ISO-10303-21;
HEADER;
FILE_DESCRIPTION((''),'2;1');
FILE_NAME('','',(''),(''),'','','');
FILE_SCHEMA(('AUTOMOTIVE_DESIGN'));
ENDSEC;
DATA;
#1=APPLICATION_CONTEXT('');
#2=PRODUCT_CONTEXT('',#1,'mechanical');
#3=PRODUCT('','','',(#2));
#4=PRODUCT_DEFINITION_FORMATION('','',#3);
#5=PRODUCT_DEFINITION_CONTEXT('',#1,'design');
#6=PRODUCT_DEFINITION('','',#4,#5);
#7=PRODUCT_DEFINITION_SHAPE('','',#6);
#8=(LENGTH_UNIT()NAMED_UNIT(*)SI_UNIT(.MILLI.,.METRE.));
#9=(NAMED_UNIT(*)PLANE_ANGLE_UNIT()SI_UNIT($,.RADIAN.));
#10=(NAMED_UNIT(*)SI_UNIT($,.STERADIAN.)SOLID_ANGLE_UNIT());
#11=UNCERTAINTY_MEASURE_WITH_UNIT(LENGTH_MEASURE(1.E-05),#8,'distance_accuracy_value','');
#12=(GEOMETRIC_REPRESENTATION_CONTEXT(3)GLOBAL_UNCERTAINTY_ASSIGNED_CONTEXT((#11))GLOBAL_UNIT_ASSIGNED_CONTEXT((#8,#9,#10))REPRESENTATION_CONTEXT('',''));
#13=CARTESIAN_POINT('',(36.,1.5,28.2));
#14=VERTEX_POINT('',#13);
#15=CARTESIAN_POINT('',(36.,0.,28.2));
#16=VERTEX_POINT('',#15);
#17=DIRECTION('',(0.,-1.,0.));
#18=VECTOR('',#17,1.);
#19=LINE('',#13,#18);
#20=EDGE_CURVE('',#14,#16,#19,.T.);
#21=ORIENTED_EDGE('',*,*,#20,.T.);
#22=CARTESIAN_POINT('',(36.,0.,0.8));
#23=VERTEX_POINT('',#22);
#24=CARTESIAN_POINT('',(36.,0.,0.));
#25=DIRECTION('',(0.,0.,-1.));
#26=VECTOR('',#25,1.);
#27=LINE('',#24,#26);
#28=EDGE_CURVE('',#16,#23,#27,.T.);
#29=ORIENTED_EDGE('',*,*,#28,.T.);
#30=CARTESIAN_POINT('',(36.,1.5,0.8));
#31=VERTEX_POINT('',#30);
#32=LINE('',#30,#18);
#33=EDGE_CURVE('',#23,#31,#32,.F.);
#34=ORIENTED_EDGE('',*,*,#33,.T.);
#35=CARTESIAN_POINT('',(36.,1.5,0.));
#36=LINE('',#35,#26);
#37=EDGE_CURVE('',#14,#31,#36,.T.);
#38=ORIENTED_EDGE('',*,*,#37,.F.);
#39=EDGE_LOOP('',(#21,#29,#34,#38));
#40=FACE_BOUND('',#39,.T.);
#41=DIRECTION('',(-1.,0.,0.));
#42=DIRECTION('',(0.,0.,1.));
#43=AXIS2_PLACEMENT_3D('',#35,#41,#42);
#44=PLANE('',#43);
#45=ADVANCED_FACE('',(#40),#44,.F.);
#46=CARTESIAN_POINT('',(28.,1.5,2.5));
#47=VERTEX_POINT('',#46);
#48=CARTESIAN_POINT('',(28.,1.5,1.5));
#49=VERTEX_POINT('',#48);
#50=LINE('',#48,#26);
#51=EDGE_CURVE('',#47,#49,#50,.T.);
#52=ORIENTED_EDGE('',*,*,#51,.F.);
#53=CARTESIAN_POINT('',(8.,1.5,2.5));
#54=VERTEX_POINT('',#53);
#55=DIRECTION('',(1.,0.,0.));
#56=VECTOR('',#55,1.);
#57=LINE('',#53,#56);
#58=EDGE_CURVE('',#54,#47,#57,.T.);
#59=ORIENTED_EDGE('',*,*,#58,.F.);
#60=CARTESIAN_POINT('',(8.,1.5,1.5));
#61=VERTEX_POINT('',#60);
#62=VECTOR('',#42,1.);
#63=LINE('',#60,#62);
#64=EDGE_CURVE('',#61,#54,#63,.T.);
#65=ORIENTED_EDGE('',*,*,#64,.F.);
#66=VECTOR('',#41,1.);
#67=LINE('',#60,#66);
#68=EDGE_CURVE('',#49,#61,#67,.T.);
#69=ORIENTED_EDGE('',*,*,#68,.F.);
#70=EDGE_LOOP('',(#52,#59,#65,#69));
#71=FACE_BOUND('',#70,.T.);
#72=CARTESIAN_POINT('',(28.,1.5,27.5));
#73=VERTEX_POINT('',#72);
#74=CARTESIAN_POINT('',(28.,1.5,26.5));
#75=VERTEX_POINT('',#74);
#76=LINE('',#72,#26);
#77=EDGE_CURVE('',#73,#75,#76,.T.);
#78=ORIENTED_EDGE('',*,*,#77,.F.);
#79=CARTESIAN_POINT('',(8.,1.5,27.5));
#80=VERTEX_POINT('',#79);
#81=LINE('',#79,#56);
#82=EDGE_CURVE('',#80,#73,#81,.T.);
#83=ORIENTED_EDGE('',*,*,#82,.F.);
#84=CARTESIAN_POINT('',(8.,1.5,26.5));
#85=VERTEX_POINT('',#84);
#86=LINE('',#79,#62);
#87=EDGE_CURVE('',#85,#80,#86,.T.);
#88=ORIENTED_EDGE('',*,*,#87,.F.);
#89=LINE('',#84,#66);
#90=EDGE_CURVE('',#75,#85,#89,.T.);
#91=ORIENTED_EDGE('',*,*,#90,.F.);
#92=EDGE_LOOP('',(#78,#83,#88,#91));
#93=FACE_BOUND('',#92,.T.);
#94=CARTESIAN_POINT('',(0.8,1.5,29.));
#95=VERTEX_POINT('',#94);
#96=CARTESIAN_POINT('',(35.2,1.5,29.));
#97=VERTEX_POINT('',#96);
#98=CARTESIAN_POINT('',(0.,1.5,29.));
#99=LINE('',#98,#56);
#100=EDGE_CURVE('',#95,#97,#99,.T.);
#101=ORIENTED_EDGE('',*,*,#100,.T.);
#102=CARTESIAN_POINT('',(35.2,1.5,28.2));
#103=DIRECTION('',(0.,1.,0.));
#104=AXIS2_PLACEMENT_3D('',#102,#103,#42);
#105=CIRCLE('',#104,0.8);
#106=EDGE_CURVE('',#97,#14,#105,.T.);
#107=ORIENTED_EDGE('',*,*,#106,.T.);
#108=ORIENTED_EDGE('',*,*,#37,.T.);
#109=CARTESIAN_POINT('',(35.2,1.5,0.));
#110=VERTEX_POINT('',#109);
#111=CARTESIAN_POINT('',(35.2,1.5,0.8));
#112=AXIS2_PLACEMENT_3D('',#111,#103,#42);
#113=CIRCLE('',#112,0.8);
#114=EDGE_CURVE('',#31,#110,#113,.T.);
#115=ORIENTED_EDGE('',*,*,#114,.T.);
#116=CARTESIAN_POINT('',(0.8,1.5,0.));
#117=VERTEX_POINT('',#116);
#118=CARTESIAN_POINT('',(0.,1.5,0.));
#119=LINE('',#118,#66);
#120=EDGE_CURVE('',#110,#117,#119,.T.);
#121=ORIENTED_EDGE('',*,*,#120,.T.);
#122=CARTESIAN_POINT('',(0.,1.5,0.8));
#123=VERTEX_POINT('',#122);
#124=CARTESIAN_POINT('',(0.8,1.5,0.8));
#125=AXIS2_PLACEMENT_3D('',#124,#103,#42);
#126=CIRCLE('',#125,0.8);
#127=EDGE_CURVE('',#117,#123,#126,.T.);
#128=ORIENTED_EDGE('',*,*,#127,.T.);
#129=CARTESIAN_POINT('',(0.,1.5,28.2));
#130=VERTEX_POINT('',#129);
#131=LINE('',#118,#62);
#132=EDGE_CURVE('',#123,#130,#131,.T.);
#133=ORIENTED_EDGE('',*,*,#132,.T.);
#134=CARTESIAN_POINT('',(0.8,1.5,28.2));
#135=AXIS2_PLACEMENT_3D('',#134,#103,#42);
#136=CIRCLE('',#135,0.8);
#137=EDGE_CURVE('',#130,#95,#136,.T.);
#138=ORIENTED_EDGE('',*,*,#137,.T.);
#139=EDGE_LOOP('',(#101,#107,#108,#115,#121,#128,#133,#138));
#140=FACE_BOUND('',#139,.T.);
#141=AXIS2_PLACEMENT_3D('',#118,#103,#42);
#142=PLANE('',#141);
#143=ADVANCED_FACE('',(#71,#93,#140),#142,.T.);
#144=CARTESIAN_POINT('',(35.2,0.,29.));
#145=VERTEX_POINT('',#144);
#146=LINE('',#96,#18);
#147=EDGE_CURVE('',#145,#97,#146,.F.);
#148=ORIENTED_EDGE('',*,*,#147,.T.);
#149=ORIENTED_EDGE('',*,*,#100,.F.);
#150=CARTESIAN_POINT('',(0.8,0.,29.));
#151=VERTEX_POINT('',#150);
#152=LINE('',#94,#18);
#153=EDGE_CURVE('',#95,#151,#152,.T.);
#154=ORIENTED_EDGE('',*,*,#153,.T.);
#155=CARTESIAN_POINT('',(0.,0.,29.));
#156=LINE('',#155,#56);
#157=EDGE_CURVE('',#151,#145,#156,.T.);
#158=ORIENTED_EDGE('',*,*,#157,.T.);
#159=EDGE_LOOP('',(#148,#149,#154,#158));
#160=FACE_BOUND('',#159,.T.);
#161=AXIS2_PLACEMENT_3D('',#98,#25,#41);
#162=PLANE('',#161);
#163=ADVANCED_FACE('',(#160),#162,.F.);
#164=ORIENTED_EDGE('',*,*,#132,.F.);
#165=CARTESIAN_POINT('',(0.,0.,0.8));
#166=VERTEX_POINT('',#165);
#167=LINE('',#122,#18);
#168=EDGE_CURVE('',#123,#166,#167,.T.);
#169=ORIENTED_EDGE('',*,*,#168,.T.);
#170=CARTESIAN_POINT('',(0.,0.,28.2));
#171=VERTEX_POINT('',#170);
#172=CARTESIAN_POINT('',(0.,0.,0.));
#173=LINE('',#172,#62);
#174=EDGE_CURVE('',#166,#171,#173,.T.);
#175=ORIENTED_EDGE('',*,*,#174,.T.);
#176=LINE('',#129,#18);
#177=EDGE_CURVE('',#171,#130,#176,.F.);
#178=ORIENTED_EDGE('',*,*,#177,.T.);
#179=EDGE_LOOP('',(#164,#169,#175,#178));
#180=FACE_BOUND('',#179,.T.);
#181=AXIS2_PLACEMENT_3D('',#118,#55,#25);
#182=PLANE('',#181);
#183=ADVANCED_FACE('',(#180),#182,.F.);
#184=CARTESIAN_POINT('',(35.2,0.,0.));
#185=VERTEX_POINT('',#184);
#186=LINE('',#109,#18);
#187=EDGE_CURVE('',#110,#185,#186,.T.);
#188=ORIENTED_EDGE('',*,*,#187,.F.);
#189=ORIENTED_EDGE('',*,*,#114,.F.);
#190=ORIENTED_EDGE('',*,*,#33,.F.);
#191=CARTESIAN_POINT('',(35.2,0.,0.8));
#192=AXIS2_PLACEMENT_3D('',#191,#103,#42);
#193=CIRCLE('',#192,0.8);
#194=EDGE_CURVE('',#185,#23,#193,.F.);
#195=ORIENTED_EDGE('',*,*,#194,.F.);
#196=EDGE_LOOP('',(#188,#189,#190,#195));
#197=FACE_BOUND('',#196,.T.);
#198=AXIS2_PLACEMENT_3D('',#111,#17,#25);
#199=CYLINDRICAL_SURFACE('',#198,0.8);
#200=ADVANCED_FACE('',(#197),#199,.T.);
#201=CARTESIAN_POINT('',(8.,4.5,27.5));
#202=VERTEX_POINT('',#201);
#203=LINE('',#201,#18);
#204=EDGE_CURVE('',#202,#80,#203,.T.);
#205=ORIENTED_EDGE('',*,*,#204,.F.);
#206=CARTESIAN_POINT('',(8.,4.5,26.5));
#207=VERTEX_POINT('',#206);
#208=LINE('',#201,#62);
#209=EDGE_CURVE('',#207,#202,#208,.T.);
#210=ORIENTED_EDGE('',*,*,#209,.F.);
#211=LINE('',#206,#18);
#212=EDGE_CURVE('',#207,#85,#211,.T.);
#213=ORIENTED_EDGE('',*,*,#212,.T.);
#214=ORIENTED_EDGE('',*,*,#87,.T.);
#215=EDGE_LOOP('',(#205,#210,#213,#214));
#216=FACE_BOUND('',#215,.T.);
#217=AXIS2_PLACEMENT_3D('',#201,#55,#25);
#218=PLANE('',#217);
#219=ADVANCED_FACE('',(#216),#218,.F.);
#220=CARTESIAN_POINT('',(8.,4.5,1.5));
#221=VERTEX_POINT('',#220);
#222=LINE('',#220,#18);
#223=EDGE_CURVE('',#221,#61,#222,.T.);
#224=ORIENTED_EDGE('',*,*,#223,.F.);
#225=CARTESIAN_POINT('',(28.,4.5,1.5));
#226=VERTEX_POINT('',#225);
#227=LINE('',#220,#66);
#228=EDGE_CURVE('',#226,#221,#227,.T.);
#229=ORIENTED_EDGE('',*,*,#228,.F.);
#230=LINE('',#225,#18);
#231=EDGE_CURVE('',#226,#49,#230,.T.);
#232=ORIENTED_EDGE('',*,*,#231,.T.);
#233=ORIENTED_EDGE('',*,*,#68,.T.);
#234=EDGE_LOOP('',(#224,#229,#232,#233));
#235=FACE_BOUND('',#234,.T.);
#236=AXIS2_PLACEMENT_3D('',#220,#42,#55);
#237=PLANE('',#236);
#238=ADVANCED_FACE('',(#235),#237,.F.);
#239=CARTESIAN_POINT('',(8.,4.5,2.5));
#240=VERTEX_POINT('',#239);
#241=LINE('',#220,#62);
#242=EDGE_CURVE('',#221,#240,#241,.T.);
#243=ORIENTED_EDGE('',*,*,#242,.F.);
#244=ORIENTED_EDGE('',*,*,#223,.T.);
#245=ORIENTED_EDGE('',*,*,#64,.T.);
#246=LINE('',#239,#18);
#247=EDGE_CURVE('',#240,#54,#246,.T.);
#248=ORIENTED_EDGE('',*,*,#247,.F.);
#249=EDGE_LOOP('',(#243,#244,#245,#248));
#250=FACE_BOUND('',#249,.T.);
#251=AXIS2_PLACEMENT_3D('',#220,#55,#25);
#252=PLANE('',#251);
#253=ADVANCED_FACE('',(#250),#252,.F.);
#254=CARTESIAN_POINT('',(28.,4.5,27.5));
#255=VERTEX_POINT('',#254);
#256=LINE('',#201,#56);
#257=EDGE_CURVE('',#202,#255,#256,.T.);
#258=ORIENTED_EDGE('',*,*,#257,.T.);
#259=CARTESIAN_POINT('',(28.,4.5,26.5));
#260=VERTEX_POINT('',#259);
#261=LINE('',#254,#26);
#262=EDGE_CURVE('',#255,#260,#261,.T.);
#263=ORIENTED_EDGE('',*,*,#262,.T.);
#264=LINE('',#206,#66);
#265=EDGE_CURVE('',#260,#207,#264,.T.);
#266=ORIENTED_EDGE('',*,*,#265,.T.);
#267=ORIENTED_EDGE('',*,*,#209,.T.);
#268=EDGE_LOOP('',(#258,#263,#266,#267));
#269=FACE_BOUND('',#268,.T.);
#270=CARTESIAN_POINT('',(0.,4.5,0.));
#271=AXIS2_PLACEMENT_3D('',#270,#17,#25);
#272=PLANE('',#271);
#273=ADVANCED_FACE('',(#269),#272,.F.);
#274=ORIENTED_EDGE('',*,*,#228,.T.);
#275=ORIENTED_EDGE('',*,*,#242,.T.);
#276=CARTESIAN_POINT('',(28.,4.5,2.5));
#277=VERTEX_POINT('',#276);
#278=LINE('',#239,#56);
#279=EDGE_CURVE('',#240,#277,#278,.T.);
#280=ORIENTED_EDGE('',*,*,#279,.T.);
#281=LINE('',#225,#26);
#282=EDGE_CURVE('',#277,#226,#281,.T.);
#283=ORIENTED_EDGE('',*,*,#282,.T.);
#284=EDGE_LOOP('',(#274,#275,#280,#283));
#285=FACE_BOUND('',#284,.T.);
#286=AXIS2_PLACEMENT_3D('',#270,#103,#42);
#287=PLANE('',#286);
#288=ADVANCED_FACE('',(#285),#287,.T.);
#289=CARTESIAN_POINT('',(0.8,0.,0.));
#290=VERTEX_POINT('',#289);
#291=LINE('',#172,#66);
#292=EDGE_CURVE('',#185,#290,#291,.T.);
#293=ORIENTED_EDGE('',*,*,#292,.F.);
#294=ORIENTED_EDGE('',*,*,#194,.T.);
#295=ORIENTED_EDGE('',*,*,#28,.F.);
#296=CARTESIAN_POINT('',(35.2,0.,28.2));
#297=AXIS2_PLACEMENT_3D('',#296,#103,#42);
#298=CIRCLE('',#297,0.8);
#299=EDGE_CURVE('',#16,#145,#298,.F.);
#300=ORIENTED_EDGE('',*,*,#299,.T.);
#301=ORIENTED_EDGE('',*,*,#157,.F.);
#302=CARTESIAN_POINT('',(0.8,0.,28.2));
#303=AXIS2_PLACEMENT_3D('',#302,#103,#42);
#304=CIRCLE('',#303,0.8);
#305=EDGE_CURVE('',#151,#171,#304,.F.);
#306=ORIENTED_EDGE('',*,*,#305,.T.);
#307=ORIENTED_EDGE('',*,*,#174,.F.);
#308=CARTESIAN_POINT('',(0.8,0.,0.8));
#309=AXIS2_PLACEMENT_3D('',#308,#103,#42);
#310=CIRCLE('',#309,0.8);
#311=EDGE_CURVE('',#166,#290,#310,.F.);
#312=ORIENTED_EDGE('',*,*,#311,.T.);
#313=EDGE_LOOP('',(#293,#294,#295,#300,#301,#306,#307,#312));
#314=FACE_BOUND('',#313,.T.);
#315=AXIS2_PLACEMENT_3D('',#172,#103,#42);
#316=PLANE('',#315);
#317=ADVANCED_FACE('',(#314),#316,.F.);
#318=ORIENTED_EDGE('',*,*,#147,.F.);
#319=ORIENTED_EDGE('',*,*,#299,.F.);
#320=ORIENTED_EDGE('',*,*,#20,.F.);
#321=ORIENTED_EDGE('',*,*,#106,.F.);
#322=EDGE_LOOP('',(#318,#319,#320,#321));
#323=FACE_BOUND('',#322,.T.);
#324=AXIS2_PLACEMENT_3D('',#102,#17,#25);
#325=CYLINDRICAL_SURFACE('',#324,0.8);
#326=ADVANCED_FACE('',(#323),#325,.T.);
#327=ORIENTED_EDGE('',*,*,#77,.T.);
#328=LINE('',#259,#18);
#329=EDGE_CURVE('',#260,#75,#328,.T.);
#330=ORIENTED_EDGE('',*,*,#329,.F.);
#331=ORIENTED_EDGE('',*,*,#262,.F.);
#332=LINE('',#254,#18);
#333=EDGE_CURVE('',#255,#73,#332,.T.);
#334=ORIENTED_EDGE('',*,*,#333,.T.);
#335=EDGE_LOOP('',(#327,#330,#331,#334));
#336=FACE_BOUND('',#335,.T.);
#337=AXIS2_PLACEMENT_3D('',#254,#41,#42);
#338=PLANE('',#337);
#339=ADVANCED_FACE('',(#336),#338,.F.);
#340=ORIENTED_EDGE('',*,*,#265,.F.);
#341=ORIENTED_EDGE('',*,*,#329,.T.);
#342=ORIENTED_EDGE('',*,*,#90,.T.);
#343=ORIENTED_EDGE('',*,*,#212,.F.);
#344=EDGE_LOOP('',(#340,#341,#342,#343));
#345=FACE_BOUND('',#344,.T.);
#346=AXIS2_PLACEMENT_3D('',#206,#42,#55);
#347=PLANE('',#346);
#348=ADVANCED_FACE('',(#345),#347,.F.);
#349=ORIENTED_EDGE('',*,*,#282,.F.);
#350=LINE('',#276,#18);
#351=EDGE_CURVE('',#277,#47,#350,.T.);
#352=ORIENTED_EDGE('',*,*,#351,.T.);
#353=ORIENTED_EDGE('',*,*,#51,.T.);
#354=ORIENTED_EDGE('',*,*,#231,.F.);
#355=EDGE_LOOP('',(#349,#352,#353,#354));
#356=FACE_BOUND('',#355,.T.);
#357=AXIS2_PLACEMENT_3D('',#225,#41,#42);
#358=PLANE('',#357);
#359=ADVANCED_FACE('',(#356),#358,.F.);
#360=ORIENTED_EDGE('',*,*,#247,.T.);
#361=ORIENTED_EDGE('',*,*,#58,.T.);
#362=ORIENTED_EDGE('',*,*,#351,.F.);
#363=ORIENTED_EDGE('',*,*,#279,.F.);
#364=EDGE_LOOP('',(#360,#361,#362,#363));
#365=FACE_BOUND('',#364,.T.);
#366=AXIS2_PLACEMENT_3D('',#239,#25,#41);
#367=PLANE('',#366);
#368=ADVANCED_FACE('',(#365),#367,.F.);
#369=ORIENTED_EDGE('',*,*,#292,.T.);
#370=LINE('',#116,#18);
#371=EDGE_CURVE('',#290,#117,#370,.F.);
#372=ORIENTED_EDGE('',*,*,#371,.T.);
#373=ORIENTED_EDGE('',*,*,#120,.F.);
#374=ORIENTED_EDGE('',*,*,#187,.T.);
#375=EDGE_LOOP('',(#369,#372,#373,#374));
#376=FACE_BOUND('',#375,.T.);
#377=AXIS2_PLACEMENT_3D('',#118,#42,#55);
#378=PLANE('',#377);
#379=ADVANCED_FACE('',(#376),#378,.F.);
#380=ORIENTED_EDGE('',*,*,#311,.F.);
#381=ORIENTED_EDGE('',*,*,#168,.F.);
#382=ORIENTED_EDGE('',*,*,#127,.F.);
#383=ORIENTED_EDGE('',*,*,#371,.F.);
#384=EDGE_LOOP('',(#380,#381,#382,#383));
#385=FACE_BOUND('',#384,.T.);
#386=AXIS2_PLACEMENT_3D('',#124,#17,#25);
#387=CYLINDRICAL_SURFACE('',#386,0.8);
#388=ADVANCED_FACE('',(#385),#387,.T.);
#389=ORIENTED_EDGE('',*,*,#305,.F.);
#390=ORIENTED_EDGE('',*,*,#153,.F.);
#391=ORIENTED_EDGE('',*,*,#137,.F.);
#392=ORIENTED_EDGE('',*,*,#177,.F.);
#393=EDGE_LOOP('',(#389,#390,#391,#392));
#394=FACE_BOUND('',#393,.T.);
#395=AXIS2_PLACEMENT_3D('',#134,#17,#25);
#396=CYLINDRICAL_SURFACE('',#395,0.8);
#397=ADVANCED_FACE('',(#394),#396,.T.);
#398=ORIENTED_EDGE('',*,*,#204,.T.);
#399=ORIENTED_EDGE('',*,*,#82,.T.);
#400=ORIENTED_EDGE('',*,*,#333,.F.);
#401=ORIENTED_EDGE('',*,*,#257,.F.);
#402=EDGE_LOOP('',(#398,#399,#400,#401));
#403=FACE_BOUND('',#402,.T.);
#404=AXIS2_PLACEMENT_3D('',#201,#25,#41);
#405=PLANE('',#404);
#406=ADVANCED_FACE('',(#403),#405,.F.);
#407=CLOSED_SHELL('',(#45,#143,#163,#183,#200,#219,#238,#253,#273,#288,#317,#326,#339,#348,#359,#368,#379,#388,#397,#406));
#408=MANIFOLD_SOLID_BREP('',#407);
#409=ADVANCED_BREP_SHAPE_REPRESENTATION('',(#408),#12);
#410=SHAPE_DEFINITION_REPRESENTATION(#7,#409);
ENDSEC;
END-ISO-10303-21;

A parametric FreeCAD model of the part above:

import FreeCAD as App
import Part
import Sketcher

V = App.Vector
Q = App.Units.Quantity


def edges_at(feature, points):
    """Names of the edges that pass closest to the given points."""
    edges = feature.Shape.Edges
    near = lambda p: min(range(len(edges)), key=lambda i: edges[i].distToShape(Part.Vertex(*p))[0])
    return sorted({f"Edge{near(p) + 1}" for p in points})

doc = App.newDocument("Part")
params = doc.addObject("Spreadsheet::Sheet", "Params")
for row, (alias, value) in enumerate([
    ("sketch1_width", "36 mm"),
    ("sketch1_height", "29 mm"),
    ("pad1_length", "1.5 mm"),
    ("fillet_radius", "0.8 mm"),
    ("sketch2_width", "20 mm"),
    ("sketch2_height", "1 mm"),
    ("pad2_length", "3 mm"),
], start=1):
    params.set(f"A{row}", alias)
    params.set(f"B{row}", "=" + value)
    params.setAlias(f"B{row}", alias)

body = doc.addObject("PartDesign::Body", "Body")

# Sketch on XZ plane
sketch1 = body.newObject("Sketcher::SketchObject", "Sketch")
sketch1.AttachmentSupport = (doc.getObject("XZ_Plane"), [""])
sketch1.MapMode = "FlatFace"
sketch1.addGeometry([
    Part.LineSegment(V(0, 0, 0), V(0, 29, 0)),
    Part.LineSegment(V(0, 29, 0), V(36, 29, 0)),
    Part.LineSegment(V(36, 29, 0), V(36, 0, 0)),
    Part.LineSegment(V(36, 0, 0), V(0, 0, 0)),
], False)
sketch1.addConstraint([
    Sketcher.Constraint("Coincident", 0, 2, 1, 1),
    Sketcher.Constraint("Coincident", 1, 2, 2, 1),
    Sketcher.Constraint("Coincident", 2, 2, 3, 1),
    Sketcher.Constraint("Coincident", 3, 2, 0, 1),
    Sketcher.Constraint("Vertical", 0),
    Sketcher.Constraint("Horizontal", 1),
    Sketcher.Constraint("Vertical", 2),
    Sketcher.Constraint("Horizontal", 3),
    Sketcher.Constraint("Coincident", 3, 2, -1, 1),
    Sketcher.Constraint("DistanceX", 1, 1, 1, 2, Q("36 mm")),
    Sketcher.Constraint("DistanceY", 0, 1, 0, 2, Q("29 mm")),
])
sketch1.setExpression("Constraints[9]", "Params.sketch1_width")
sketch1.setExpression("Constraints[10]", "Params.sketch1_height")
pad1 = body.newObject("PartDesign::Pad", "Pad")
pad1.Profile = sketch1
pad1.setExpression("Length", "Params.pad1_length")
pad1.Reversed = True
doc.recompute()

fillet = body.newObject("PartDesign::Fillet", "Fillet")
fillet.Base = (pad1, edges_at(pad1, [
    (0, 0.75, 0),
    (36, 0.75, 0),
    (36, 0.75, 29),
    (0, 0.75, 29),
]))
fillet.setExpression("Radius", "Params.fillet_radius")

# Sketch on XZ plane
sketch2 = body.newObject("Sketcher::SketchObject", "Sketch001")
sketch2.AttachmentSupport = (doc.getObject("XZ_Plane"), [""])
sketch2.MapMode = "FlatFace"
sketch2.AttachmentOffset = App.Placement(V(0, 0, -1.5), App.Rotation())
sketch2.addGeometry([
    Part.LineSegment(V(8, 1.5, 0), V(8, 2.5, 0)),  # 0
    Part.LineSegment(V(8, 2.5, 0), V(28, 2.5, 0)),  # 1
    Part.LineSegment(V(28, 2.5, 0), V(28, 1.5, 0)),  # 2
    Part.LineSegment(V(28, 1.5, 0), V(8, 1.5, 0)),  # 3
    Part.LineSegment(V(8, 26.5, 0), V(8, 27.5, 0)),  # 4
    Part.LineSegment(V(8, 27.5, 0), V(28, 27.5, 0)),  # 5
    Part.LineSegment(V(28, 27.5, 0), V(28, 26.5, 0)),  # 6
    Part.LineSegment(V(28, 26.5, 0), V(8, 26.5, 0)),  # 7
], False)
sketch2.addConstraint([
    Sketcher.Constraint("Coincident", 0, 2, 1, 1),
    Sketcher.Constraint("Coincident", 1, 2, 2, 1),
    Sketcher.Constraint("Coincident", 2, 2, 3, 1),
    Sketcher.Constraint("Coincident", 3, 2, 0, 1),
    Sketcher.Constraint("Coincident", 4, 2, 5, 1),
    Sketcher.Constraint("Coincident", 5, 2, 6, 1),
    Sketcher.Constraint("Coincident", 6, 2, 7, 1),
    Sketcher.Constraint("Coincident", 7, 2, 4, 1),
    Sketcher.Constraint("Vertical", 0),
    Sketcher.Constraint("Horizontal", 1),
    Sketcher.Constraint("Vertical", 2),
    Sketcher.Constraint("Horizontal", 3),
    Sketcher.Constraint("Vertical", 4),
    Sketcher.Constraint("Horizontal", 5),
    Sketcher.Constraint("Vertical", 6),
    Sketcher.Constraint("Horizontal", 7),
    Sketcher.Constraint("Vertical", 3, 2, 4, 2),
    Sketcher.Constraint("Vertical", 2, 2, 5, 2),
    Sketcher.Constraint("Equal", 2, 4),
    Sketcher.Constraint("DistanceX", 1, 1, 1, 2, Q("20 mm")),
    Sketcher.Constraint("DistanceY", 0, 1, 0, 2, Q("1 mm")),
    Sketcher.Constraint("DistanceX", -1, 1, 0, 2, Q("8 mm")),
    Sketcher.Constraint("DistanceY", 0, 2, 4, 2, Q("25 mm")),
    Sketcher.Constraint("DistanceY", -1, 1, 0, 2, Q("2.5 mm")),
])
sketch2.setExpression("Constraints[19]", "Params.sketch2_width")
sketch2.setExpression("Constraints[20]", "Params.sketch2_height")
pad2 = body.newObject("PartDesign::Pad", "Pad001")
pad2.Profile = sketch2
pad2.setExpression("Length", "Params.pad2_length")
pad2.Reversed = True

doc.recompute()
